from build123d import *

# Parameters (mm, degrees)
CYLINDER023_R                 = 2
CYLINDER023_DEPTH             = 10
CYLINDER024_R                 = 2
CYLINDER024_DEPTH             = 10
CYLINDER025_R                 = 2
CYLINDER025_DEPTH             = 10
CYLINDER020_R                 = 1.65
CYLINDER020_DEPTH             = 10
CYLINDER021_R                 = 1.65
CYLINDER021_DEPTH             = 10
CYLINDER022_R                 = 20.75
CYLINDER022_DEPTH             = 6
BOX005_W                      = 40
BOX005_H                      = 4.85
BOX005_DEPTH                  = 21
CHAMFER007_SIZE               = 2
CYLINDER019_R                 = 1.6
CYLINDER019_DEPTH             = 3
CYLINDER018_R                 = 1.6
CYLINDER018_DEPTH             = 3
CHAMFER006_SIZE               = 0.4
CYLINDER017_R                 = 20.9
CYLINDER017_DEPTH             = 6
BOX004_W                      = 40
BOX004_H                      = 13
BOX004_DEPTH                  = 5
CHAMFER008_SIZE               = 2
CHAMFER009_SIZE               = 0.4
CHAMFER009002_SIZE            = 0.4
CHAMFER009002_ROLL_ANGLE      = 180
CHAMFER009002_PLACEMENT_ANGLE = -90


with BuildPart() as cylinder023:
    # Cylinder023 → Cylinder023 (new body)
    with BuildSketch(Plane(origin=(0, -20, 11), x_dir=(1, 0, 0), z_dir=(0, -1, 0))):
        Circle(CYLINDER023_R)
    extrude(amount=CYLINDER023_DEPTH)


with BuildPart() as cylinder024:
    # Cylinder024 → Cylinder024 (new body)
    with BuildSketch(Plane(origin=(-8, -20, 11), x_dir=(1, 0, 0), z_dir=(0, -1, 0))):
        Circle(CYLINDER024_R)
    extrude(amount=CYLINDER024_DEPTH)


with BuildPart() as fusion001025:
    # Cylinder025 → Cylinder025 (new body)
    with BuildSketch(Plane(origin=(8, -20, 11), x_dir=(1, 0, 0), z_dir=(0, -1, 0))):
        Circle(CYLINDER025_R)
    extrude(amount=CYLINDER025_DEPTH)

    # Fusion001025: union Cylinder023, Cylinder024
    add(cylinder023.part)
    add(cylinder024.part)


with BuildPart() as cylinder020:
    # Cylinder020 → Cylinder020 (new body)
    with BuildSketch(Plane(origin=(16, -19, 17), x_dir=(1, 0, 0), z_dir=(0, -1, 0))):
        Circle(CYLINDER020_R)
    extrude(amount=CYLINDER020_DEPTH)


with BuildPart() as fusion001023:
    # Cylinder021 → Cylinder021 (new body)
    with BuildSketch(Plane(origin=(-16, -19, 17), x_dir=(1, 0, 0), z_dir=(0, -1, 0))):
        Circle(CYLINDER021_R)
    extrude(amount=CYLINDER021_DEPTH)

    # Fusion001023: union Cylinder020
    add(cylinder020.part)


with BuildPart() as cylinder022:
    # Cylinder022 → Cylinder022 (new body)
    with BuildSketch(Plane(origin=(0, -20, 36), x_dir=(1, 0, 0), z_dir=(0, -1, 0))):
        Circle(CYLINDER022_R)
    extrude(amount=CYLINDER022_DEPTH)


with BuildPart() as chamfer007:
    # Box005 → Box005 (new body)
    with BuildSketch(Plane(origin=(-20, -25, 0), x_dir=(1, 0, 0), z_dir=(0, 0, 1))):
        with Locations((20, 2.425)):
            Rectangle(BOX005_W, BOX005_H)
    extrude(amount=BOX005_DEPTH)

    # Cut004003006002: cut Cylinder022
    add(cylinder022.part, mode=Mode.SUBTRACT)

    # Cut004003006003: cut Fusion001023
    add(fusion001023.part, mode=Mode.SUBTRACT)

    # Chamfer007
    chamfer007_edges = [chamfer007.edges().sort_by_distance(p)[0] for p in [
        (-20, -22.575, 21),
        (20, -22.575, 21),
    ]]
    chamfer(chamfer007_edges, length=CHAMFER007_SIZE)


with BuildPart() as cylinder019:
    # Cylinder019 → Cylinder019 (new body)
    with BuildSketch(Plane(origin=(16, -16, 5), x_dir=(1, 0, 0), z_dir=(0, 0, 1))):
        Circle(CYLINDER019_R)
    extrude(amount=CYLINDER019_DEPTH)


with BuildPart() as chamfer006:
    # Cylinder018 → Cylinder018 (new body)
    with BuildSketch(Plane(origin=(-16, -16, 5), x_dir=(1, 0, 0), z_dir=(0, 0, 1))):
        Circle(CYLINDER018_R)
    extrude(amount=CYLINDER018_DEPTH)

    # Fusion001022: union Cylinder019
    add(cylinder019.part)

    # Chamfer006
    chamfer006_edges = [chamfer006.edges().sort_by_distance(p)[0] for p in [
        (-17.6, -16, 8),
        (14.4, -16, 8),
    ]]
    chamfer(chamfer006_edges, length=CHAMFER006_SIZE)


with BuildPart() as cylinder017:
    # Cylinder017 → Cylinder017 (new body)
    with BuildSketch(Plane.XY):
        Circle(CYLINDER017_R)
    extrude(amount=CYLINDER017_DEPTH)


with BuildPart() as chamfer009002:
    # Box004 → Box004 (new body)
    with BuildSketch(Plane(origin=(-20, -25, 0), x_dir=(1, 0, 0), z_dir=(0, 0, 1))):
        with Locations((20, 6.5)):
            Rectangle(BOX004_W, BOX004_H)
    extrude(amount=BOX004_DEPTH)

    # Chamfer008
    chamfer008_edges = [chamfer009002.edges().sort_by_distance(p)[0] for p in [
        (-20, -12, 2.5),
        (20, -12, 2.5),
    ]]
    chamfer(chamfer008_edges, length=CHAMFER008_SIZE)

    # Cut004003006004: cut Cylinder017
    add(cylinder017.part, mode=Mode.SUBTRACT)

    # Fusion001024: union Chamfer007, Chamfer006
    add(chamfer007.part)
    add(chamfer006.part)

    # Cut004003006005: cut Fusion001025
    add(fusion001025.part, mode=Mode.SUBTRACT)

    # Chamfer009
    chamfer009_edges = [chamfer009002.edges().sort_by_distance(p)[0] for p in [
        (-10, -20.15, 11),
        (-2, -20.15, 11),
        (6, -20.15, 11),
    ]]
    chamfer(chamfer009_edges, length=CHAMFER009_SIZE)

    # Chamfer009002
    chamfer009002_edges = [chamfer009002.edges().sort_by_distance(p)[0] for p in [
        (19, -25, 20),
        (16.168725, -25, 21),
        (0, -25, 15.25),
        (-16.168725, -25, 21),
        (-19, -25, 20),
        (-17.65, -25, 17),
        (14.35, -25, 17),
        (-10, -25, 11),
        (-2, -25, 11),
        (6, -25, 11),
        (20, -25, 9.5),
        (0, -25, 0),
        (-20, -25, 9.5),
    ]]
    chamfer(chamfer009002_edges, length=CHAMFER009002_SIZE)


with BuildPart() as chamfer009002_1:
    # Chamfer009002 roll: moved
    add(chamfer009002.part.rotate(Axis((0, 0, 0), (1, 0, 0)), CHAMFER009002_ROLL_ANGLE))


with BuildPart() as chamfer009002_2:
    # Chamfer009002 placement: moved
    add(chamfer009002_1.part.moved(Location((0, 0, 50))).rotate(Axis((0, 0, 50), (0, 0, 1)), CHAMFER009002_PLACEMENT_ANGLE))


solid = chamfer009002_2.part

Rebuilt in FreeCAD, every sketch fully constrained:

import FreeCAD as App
import Part
import Sketcher

V = App.Vector
Q = App.Units.Quantity


def edges_at(feature, points):
    """Names of the edges that pass closest to the given points."""
    edges = feature.Shape.Edges
    near = lambda p: min(range(len(edges)), key=lambda i: edges[i].distToShape(Part.Vertex(*p))[0])
    return sorted({f"Edge{near(p) + 1}" for p in points})


def add_polygon(sketch, points):
    """Adds a closed chain of lines whose ends are joined by coincident constraints."""
    first, n = sketch.GeometryCount, len(points)
    for a, b in zip(points, points[1:] + points[:1]):
        sketch.addGeometry(Part.LineSegment(App.Vector(*a, 0), App.Vector(*b, 0)), False)
    for i in range(n):
        sketch.addConstraint(Sketcher.Constraint("Coincident", first + i, 2, first + (i + 1) % n, 1))

doc = App.newDocument("Part")
body = doc.addObject("PartDesign::Body", "Body")

sketch1 = body.newObject("Sketcher::SketchObject", "Sketch")
sketch1.AttachmentSupport = (doc.getObject("XZ_Plane"), [""])
sketch1.MapMode = "FlatFace"
sketch1.AttachmentOffset = App.Placement(V(0, 0, 20), App.Rotation())
sketch1.addGeometry(Part.Circle(V(0, 11, 0), V(0, 0, 1), 2), False)
sketch1.addConstraint([
    Sketcher.Constraint("PointOnObject", 0, 3, -2),
    Sketcher.Constraint("Diameter", 0, Q("4 mm")),
    Sketcher.Constraint("DistanceY", -1, 1, 0, 3, Q("11 mm")),
])
pad1 = body.newObject("PartDesign::Pad", "Pad")
pad1.Profile = sketch1
pad1.Length = 10
body2 = doc.addObject("PartDesign::Body", "Body001")

sketch2 = body2.newObject("Sketcher::SketchObject", "Sketch001")
sketch2.AttachmentSupport = (doc.getObject("XZ_Plane001"), [""])
sketch2.MapMode = "FlatFace"
sketch2.AttachmentOffset = App.Placement(V(0, 0, 20), App.Rotation())
sketch2.addGeometry(Part.Circle(V(-8, 11, 0), V(0, 0, 1), 2), False)
sketch2.addConstraint([
    Sketcher.Constraint("Diameter", 0, Q("4 mm")),
    Sketcher.Constraint("DistanceX", 0, 3, -1, 1, Q("8 mm")),
    Sketcher.Constraint("DistanceY", -1, 1, 0, 3, Q("11 mm")),
])
pad2 = body2.newObject("PartDesign::Pad", "Pad001")
pad2.Profile = sketch2
pad2.Length = 10
body3 = doc.addObject("PartDesign::Body", "Body002")
body3.AllowCompound = True

sketch3 = body3.newObject("Sketcher::SketchObject", "Sketch002")
sketch3.AttachmentSupport = (doc.getObject("XZ_Plane002"), [""])
sketch3.MapMode = "FlatFace"
sketch3.AttachmentOffset = App.Placement(V(0, 0, 20), App.Rotation())
sketch3.addGeometry(Part.Circle(V(8, 11, 0), V(0, 0, 1), 2), False)
sketch3.addConstraint([
    Sketcher.Constraint("Diameter", 0, Q("4 mm")),
    Sketcher.Constraint("DistanceX", -1, 1, 0, 3, Q("8 mm")),
    Sketcher.Constraint("DistanceY", -1, 1, 0, 3, Q("11 mm")),
])
pad3 = body3.newObject("PartDesign::Pad", "Pad002")
pad3.Profile = sketch3
pad3.Length = 10
doc.recompute()

boolean = body3.newObject("PartDesign::Boolean", "Boolean")
boolean.Type = "Fuse"
boolean.addObjects([body])
doc.recompute()

boolean2 = body3.newObject("PartDesign::Boolean", "Boolean001")
boolean2.Type = "Fuse"
boolean2.addObjects([body2])
body4 = doc.addObject("PartDesign::Body", "Body003")

sketch4 = body4.newObject("Sketcher::SketchObject", "Sketch003")
sketch4.AttachmentSupport = (doc.getObject("XZ_Plane003"), [""])
sketch4.MapMode = "FlatFace"
sketch4.AttachmentOffset = App.Placement(V(0, 0, 19), App.Rotation())
sketch4.addGeometry(Part.Circle(V(16, 17, 0), V(0, 0, 1), 1.65), False)
sketch4.addConstraint([
    Sketcher.Constraint("Diameter", 0, Q("3.3 mm")),
    Sketcher.Constraint("DistanceX", -1, 1, 0, 3, Q("16 mm")),
    Sketcher.Constraint("DistanceY", -1, 1, 0, 3, Q("17 mm")),
])
pad4 = body4.newObject("PartDesign::Pad", "Pad003")
pad4.Profile = sketch4
pad4.Length = 10
body5 = doc.addObject("PartDesign::Body", "Body004")
body5.AllowCompound = True

sketch5 = body5.newObject("Sketcher::SketchObject", "Sketch004")
sketch5.AttachmentSupport = (doc.getObject("XZ_Plane004"), [""])
sketch5.MapMode = "FlatFace"
sketch5.AttachmentOffset = App.Placement(V(0, 0, 19), App.Rotation())
sketch5.addGeometry(Part.Circle(V(-16, 17, 0), V(0, 0, 1), 1.65), False)
sketch5.addConstraint([
    Sketcher.Constraint("Diameter", 0, Q("3.3 mm")),
    Sketcher.Constraint("DistanceX", 0, 3, -1, 1, Q("16 mm")),
    Sketcher.Constraint("DistanceY", -1, 1, 0, 3, Q("17 mm")),
])
pad5 = body5.newObject("PartDesign::Pad", "Pad004")
pad5.Profile = sketch5
pad5.Length = 10
doc.recompute()

boolean3 = body5.newObject("PartDesign::Boolean", "Boolean002")
boolean3.Type = "Fuse"
boolean3.addObjects([body4])
body6 = doc.addObject("PartDesign::Body", "Body005")

sketch6 = body6.newObject("Sketcher::SketchObject", "Sketch005")
sketch6.AttachmentSupport = (doc.getObject("XZ_Plane005"), [""])
sketch6.MapMode = "FlatFace"
sketch6.AttachmentOffset = App.Placement(V(0, 0, 20), App.Rotation())
sketch6.addGeometry(Part.Circle(V(0, 36, 0), V(0, 0, 1), 20.75), False)
sketch6.addConstraint([
    Sketcher.Constraint("PointOnObject", 0, 3, -2),
    Sketcher.Constraint("Diameter", 0, Q("41.5 mm")),
    Sketcher.Constraint("DistanceY", -1, 1, 0, 3, Q("36 mm")),
])
pad6 = body6.newObject("PartDesign::Pad", "Pad005")
pad6.Profile = sketch6
pad6.Length = 6
body7 = doc.addObject("PartDesign::Body", "Body006")

sketch7 = body7.newObject("Sketcher::SketchObject", "Sketch006")
sketch7.AttachmentSupport = (doc.getObject("XY_Plane006"), [""])
sketch7.MapMode = "FlatFace"
add_polygon(sketch7, [(-20, -20.15), (-20, -25), (20, -25), (20, -20.15)])
sketch7.addConstraint([
    Sketcher.Constraint("Vertical", 0),
    Sketcher.Constraint("Horizontal", 1),
    Sketcher.Constraint("Vertical", 2),
    Sketcher.Constraint("Horizontal", 3),
    Sketcher.Constraint("DistanceX", 1, 1, 1, 2, Q("40 mm")),
    Sketcher.Constraint("DistanceX", 0, 2, -1, 1, Q("20 mm")),
    Sketcher.Constraint("DistanceY", 0, 2, -1, 1, Q("25 mm")),
    Sketcher.Constraint("DistanceY", 0, 2, 0, 1, Q("4.85 mm")),
])
pad7 = body7.newObject("PartDesign::Pad", "Pad006")
pad7.Profile = sketch7
pad7.Length = 21
doc.recompute()

boolean4 = body7.newObject("PartDesign::Boolean", "Boolean003")
boolean4.Type = "Cut"
boolean4.addObjects([body6])
doc.recompute()

boolean5 = body7.newObject("PartDesign::Boolean", "Boolean004")
boolean5.Type = "Cut"
boolean5.addObjects([body5])
doc.recompute()

chamfer = body7.newObject("PartDesign::Chamfer", "Chamfer")
chamfer.Base = (boolean5, edges_at(boolean5, [(-20, -22.575, 21), (20, -22.575, 21)]))
chamfer.Size = 2
body8 = doc.addObject("PartDesign::Body", "Body007")

sketch8 = body8.newObject("Sketcher::SketchObject", "Sketch007")
sketch8.AttachmentSupport = (doc.getObject("XY_Plane007"), [""])
sketch8.MapMode = "FlatFace"
sketch8.AttachmentOffset = App.Placement(V(0, 0, 5), App.Rotation())
sketch8.addGeometry(Part.Circle(V(16, -16, 0), V(0, 0, 1), 1.6), False)
sketch8.addConstraint([
    Sketcher.Constraint("Diameter", 0, Q("3.2 mm")),
    Sketcher.Constraint("DistanceX", -1, 1, 0, 3, Q("16 mm")),
    Sketcher.Constraint("DistanceY", 0, 3, -1, 1, Q("16 mm")),
])
pad8 = body8.newObject("PartDesign::Pad", "Pad007")
pad8.Profile = sketch8
pad8.Length = 3
body9 = doc.addObject("PartDesign::Body", "Body008")
body9.AllowCompound = True

sketch9 = body9.newObject("Sketcher::SketchObject", "Sketch008")
sketch9.AttachmentSupport = (doc.getObject("XY_Plane008"), [""])
sketch9.MapMode = "FlatFace"
sketch9.AttachmentOffset = App.Placement(V(0, 0, 5), App.Rotation())
sketch9.addGeometry(Part.Circle(V(-16, -16, 0), V(0, 0, 1), 1.6), False)
sketch9.addConstraint([
    Sketcher.Constraint("Diameter", 0, Q("3.2 mm")),
    Sketcher.Constraint("DistanceX", 0, 3, -1, 1, Q("16 mm")),
    Sketcher.Constraint("DistanceY", 0, 3, -1, 1, Q("16 mm")),
])
pad9 = body9.newObject("PartDesign::Pad", "Pad008")
pad9.Profile = sketch9
pad9.Length = 3
doc.recompute()

boolean6 = body9.newObject("PartDesign::Boolean", "Boolean005")
boolean6.Type = "Fuse"
boolean6.addObjects([body8])
doc.recompute()

chamfer2 = body9.newObject("PartDesign::Chamfer", "Chamfer001")
chamfer2.Base = (boolean6, edges_at(boolean6, [(-17.6, -16, 8), (14.4, -16, 8)]))
chamfer2.Size = 0.4
body10 = doc.addObject("PartDesign::Body", "Body009")

sketch10 = body10.newObject("Sketcher::SketchObject", "Sketch009")
sketch10.AttachmentSupport = (doc.getObject("XY_Plane009"), [""])
sketch10.MapMode = "FlatFace"
sketch10.addGeometry(Part.Circle(V(0, 0, 0), V(0, 0, 1), 20.9), False)
sketch10.addConstraint([
    Sketcher.Constraint("Coincident", 0, 3, -1, 1),
    Sketcher.Constraint("Diameter", 0, Q("41.8 mm")),
])
pad10 = body10.newObject("PartDesign::Pad", "Pad009")
pad10.Profile = sketch10
pad10.Length = 6
body11 = doc.addObject("PartDesign::Body", "Body010")

sketch11 = body11.newObject("Sketcher::SketchObject", "Sketch010")
sketch11.AttachmentSupport = (doc.getObject("XY_Plane010"), [""])
sketch11.MapMode = "FlatFace"
add_polygon(sketch11, [(-20, -12), (-20, -25), (20, -25), (20, -12)])
sketch11.addConstraint([
    Sketcher.Constraint("Vertical", 0),
    Sketcher.Constraint("Horizontal", 1),
    Sketcher.Constraint("Vertical", 2),
    Sketcher.Constraint("Horizontal", 3),
    Sketcher.Constraint("DistanceX", 1, 1, 1, 2, Q("40 mm")),
    Sketcher.Constraint("DistanceY", 0, 2, 0, 1, Q("13 mm")),
    Sketcher.Constraint("DistanceX", 0, 2, -1, 1, Q("20 mm")),
    Sketcher.Constraint("DistanceY", 0, 2, -1, 1, Q("25 mm")),
])
pad11 = body11.newObject("PartDesign::Pad", "Pad010")
pad11.Profile = sketch11
pad11.Length = 5
doc.recompute()

chamfer3 = body11.newObject("PartDesign::Chamfer", "Chamfer002")
chamfer3.Base = (pad11, edges_at(pad11, [(-20, -12, 2.5), (20, -12, 2.5)]))
chamfer3.Size = 2
doc.recompute()

boolean7 = body11.newObject("PartDesign::Boolean", "Boolean006")
boolean7.Type = "Cut"
boolean7.addObjects([body10])
doc.recompute()

boolean8 = body11.newObject("PartDesign::Boolean", "Boolean007")
boolean8.Type = "Fuse"
boolean8.addObjects([body7])
doc.recompute()

boolean9 = body11.newObject("PartDesign::Boolean", "Boolean008")
boolean9.Type = "Fuse"
boolean9.addObjects([body9])
doc.recompute()

boolean10 = body11.newObject("PartDesign::Boolean", "Boolean009")
boolean10.Type = "Cut"
boolean10.addObjects([body3])
doc.recompute()

chamfer4 = body11.newObject("PartDesign::Chamfer", "Chamfer003")
chamfer4.Base = (boolean10, edges_at(boolean10, [(-10, -20.15, 11), (-2, -20.15, 11), (6, -20.15, 11)]))
chamfer4.Size = 0.4
doc.recompute()

chamfer5 = body11.newObject("PartDesign::Chamfer", "Chamfer004")
chamfer5.Base = (chamfer4, edges_at(chamfer4, [
    (19, -25, 20),
    (16.169, -25, 21),
    (0, -25, 15.25),
    (-16.169, -25, 21),
    (-19, -25, 20),
    (-17.65, -25, 17),
    (14.35, -25, 17),
    (-10, -25, 11),
    (-2, -25, 11),
    (6, -25, 11),
    (20, -25, 9.5),
    (0, -25, 0),
    (-20, -25, 9.5),
]))
chamfer5.Size = 0.4
body12 = doc.addObject("PartDesign::Body", "Body011")
doc.recompute()

body11.Placement = App.Placement(V(0, 0, 0), App.Rotation(V(1, 0, 0), 180))
boolean11 = body12.newObject("PartDesign::Boolean", "Boolean010")
boolean11.Type = "Fuse"
boolean11.addObjects([body11])
body13 = doc.addObject("PartDesign::Body", "Body012")
doc.recompute()

body12.Placement = App.Placement(V(0, 0, 50), App.Rotation(V(0, 0, 1), 270))
boolean12 = body13.newObject("PartDesign::Boolean", "Boolean011")
boolean12.Type = "Fuse"
boolean12.addObjects([body12])

doc.recompute()
